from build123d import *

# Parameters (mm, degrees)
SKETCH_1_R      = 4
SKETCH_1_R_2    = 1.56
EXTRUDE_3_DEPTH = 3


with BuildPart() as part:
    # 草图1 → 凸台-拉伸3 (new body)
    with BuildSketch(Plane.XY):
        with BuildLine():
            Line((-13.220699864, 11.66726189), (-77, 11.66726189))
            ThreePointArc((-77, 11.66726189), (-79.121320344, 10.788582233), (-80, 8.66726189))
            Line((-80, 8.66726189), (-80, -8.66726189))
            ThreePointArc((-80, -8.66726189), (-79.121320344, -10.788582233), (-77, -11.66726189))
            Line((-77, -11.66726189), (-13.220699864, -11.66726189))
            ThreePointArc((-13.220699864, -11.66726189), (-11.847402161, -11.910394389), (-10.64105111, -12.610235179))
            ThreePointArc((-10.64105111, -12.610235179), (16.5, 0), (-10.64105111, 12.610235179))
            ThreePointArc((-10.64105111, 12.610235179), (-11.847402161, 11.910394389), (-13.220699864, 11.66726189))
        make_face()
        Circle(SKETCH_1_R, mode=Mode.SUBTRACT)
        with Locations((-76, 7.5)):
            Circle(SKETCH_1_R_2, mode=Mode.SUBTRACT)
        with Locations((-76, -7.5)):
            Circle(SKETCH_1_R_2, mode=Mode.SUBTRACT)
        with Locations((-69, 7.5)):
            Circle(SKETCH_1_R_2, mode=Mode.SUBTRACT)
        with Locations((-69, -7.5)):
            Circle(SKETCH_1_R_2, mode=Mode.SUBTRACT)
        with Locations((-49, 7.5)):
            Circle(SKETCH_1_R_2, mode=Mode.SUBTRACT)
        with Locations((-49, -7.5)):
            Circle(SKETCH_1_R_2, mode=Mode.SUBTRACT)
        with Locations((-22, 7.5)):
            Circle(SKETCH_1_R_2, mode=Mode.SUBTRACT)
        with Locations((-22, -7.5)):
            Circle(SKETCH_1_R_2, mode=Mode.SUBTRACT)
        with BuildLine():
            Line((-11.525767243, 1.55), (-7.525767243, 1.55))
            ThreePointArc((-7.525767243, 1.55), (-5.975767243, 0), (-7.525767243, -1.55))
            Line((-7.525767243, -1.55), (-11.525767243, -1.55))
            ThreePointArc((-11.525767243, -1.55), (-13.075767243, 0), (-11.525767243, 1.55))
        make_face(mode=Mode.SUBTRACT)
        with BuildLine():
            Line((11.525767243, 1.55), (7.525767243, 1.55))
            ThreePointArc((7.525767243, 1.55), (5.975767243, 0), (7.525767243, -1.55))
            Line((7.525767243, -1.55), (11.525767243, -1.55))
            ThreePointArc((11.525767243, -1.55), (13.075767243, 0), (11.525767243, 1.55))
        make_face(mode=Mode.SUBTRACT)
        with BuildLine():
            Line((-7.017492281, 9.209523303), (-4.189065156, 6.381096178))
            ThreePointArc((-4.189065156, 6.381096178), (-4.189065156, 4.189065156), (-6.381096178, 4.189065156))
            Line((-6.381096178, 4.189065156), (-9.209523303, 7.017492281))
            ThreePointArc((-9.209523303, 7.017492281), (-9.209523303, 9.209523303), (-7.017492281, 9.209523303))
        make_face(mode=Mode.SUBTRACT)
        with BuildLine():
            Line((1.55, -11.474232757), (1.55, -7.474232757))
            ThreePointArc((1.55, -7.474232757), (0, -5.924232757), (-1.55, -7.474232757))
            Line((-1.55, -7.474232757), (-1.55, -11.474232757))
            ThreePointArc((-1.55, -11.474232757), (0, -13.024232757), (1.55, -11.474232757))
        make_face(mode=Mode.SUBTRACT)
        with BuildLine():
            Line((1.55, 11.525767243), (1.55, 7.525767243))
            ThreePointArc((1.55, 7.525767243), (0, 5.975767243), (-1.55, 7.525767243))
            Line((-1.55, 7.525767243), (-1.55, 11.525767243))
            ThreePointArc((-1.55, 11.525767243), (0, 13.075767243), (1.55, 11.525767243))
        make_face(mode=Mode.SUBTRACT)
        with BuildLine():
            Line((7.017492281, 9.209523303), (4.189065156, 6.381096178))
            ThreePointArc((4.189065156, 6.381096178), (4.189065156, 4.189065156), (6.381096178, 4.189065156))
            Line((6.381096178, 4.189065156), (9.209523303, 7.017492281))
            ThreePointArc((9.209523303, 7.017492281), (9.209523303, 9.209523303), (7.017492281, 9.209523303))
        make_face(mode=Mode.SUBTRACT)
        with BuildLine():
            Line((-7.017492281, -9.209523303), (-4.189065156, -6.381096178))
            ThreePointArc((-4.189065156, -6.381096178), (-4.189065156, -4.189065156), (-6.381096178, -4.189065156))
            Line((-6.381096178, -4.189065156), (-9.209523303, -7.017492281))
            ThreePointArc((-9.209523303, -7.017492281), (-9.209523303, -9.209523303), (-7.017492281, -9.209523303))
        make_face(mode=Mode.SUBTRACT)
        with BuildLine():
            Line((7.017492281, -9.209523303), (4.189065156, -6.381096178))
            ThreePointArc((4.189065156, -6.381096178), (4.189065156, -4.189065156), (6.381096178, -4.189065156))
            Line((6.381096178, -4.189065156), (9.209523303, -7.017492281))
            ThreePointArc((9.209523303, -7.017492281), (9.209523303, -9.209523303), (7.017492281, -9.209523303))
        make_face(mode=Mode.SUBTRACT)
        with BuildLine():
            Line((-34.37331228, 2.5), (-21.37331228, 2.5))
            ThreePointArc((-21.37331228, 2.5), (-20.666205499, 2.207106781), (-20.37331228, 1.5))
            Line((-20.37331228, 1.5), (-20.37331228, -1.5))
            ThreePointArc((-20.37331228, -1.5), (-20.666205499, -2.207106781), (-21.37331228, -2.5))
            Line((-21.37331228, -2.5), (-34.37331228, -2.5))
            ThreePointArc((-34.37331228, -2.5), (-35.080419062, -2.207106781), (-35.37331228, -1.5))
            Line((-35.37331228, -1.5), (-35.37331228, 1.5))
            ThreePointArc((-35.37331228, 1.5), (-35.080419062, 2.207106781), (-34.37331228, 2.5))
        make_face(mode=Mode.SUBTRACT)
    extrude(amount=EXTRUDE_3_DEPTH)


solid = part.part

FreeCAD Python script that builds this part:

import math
import FreeCAD as App
import Part
import Sketcher
Q = App.Units.Quantity

doc = App.newDocument("Part")
body = doc.addObject("PartDesign::Body", "Body")

sketch1 = body.newObject("Sketcher::SketchObject", "Sketch")
sketch1.AttachmentSupport = (doc.getObject("XY_Plane"), [""])
sketch1.MapMode = "FlatFace"
sketch1.addGeometry([
    Part.LineSegment(App.Vector(-13.2, 11.7, 0), App.Vector(-77, 11.7, 0)),
    Part.ArcOfCircle(Part.Circle(App.Vector(-77, 8.7, 0), App.Vector(0, 0, 1), 3), math.radians(90), math.radians(180)),
    Part.LineSegment(App.Vector(-80, 8.7, 0), App.Vector(-80, -8.7, 0)),
    Part.ArcOfCircle(Part.Circle(App.Vector(-77, -8.7, 0), App.Vector(0, 0, 1), 3), math.radians(180), math.radians(270)),
    Part.LineSegment(App.Vector(-77, -11.7, 0), App.Vector(-13.2, -11.7, 0)),
    Part.ArcOfCircle(Part.Circle(App.Vector(-13.2, -15.7, 0), App.Vector(0, 0, 1), 4), math.radians(50), math.radians(90)),
    Part.ArcOfCircle(Part.Circle(App.Vector(0, 0, 0), App.Vector(0, 0, 1), 16.5), math.radians(-130), math.radians(130)),
    Part.ArcOfCircle(Part.Circle(App.Vector(-13.2, 15.7, 0), App.Vector(0, 0, 1), 4), math.radians(-90), math.radians(-50)),
    Part.Circle(App.Vector(-76, -7.5, 0), App.Vector(0, 0, 1), 1.6),
    Part.Circle(App.Vector(-69, -7.5, 0), App.Vector(0, 0, 1), 1.6),
    Part.Circle(App.Vector(-49, -7.5, 0), App.Vector(0, 0, 1), 1.6),
    Part.Circle(App.Vector(-22, -7.5, 0), App.Vector(0, 0, 1), 1.6),
    Part.LineSegment(App.Vector(1.6, -7.5, 0), App.Vector(1.6, -11.5, 0)),
    Part.ArcOfCircle(Part.Circle(App.Vector(0, -11.5, 0), App.Vector(0, 0, 1), 1.6), math.radians(180), math.radians(360)),
    Part.LineSegment(App.Vector(-1.6, -11.5, 0), App.Vector(-1.6, -7.5, 0)),
    Part.ArcOfCircle(Part.Circle(App.Vector(0, -7.5, 0), App.Vector(0, 0, 1), 1.6), math.radians(0), math.radians(180)),
    Part.LineSegment(App.Vector(-4.2, -6.4, 0), App.Vector(-7, -9.2, 0)),
    Part.ArcOfCircle(Part.Circle(App.Vector(-8.1, -8.1, 0), App.Vector(0, 0, 1), 1.6), math.radians(135), math.radians(315)),
    Part.LineSegment(App.Vector(-9.2, -7, 0), App.Vector(-6.4, -4.2, 0)),
    Part.ArcOfCircle(Part.Circle(App.Vector(-5.3, -5.3, 0), App.Vector(0, 0, 1), 1.6), math.radians(-45), math.radians(135)),
    Part.ArcOfCircle(Part.Circle(App.Vector(8.1, -8.1, 0), App.Vector(0, 0, 1), 1.6), math.radians(-135), math.radians(45)),
    Part.LineSegment(App.Vector(7, -9.2, 0), App.Vector(4.2, -6.4, 0)),
    Part.ArcOfCircle(Part.Circle(App.Vector(5.3, -5.3, 0), App.Vector(0, 0, 1), 1.6), math.radians(45), math.radians(225)),
    Part.LineSegment(App.Vector(6.4, -4.2, 0), App.Vector(9.2, -7, 0)),
    Part.ArcOfCircle(Part.Circle(App.Vector(-34.4, 1.5, 0), App.Vector(0, 0, 1), 1), math.radians(90), math.radians(180)),
    Part.LineSegment(App.Vector(-34.4, 2.5, 0), App.Vector(-21.4, 2.5, 0)),
    Part.ArcOfCircle(Part.Circle(App.Vector(-21.4, 1.5, 0), App.Vector(0, 0, 1), 1), math.radians(0), math.radians(90)),
    Part.LineSegment(App.Vector(-20.4, 1.5, 0), App.Vector(-20.4, -1.5, 0)),
    Part.ArcOfCircle(Part.Circle(App.Vector(-21.4, -1.5, 0), App.Vector(0, 0, 1), 1), math.radians(-90), math.radians(0)),
    Part.LineSegment(App.Vector(-21.4, -2.5, 0), App.Vector(-34.4, -2.5, 0)),
    Part.ArcOfCircle(Part.Circle(App.Vector(-34.4, -1.5, 0), App.Vector(0, 0, 1), 1), math.radians(180), math.radians(270)),
    Part.LineSegment(App.Vector(-35.4, -1.5, 0), App.Vector(-35.4, 1.5, 0)),
    Part.ArcOfCircle(Part.Circle(App.Vector(-11.5, 0, 0), App.Vector(0, 0, 1), 1.6), math.radians(90), math.radians(270)),
    Part.LineSegment(App.Vector(-11.5, 1.6, 0), App.Vector(-7.5, 1.6, 0)),
    Part.ArcOfCircle(Part.Circle(App.Vector(-7.5, 0, 0), App.Vector(0, 0, 1), 1.6), math.radians(-90), math.radians(90)),
    Part.LineSegment(App.Vector(-7.5, -1.6, 0), App.Vector(-11.5, -1.6, 0)),
    Part.Circle(App.Vector(0, 0, 0), App.Vector(0, 0, 1), 4),
    Part.LineSegment(App.Vector(7.5, 1.6, 0), App.Vector(11.5, 1.6, 0)),
    Part.ArcOfCircle(Part.Circle(App.Vector(11.5, 0, 0), App.Vector(0, 0, 1), 1.6), math.radians(-90), math.radians(90)),
    Part.LineSegment(App.Vector(11.5, -1.6, 0), App.Vector(7.5, -1.6, 0)),
    Part.ArcOfCircle(Part.Circle(App.Vector(7.5, 0, 0), App.Vector(0, 0, 1), 1.6), math.radians(90), math.radians(270)),
    Part.Circle(App.Vector(-76, 7.5, 0), App.Vector(0, 0, 1), 1.6),
    Part.Circle(App.Vector(-69, 7.5, 0), App.Vector(0, 0, 1), 1.6),
    Part.Circle(App.Vector(-49, 7.5, 0), App.Vector(0, 0, 1), 1.6),
    Part.Circle(App.Vector(-22, 7.5, 0), App.Vector(0, 0, 1), 1.6),
    Part.ArcOfCircle(Part.Circle(App.Vector(-8.1, 8.1, 0), App.Vector(0, 0, 1), 1.6), math.radians(45), math.radians(225)),
    Part.LineSegment(App.Vector(-7, 9.2, 0), App.Vector(-4.2, 6.4, 0)),
    Part.ArcOfCircle(Part.Circle(App.Vector(-5.3, 5.3, 0), App.Vector(0, 0, 1), 1.6), math.radians(-135), math.radians(45)),
    Part.LineSegment(App.Vector(-6.4, 4.2, 0), App.Vector(-9.2, 7, 0)),
    Part.ArcOfCircle(Part.Circle(App.Vector(0, 11.5, 0), App.Vector(0, 0, 1), 1.6), math.radians(0), math.radians(180)),
    Part.LineSegment(App.Vector(1.6, 11.5, 0), App.Vector(1.6, 7.5, 0)),
    Part.ArcOfCircle(Part.Circle(App.Vector(0, 7.5, 0), App.Vector(0, 0, 1), 1.6), math.radians(180), math.radians(360)),
    Part.LineSegment(App.Vector(-1.6, 7.5, 0), App.Vector(-1.6, 11.5, 0)),
    Part.LineSegment(App.Vector(4.2, 6.4, 0), App.Vector(7, 9.2, 0)),
    Part.ArcOfCircle(Part.Circle(App.Vector(8.1, 8.1, 0), App.Vector(0, 0, 1), 1.6), math.radians(-45), math.radians(135)),
    Part.LineSegment(App.Vector(9.2, 7, 0), App.Vector(6.4, 4.2, 0)),
    Part.ArcOfCircle(Part.Circle(App.Vector(5.3, 5.3, 0), App.Vector(0, 0, 1), 1.6), math.radians(135), math.radians(315)),
], False)
sketch1.addConstraint([
    Sketcher.Constraint("Tangent", 0, 2, 1, 1),
    Sketcher.Constraint("Tangent", 1, 2, 2, 1),
    Sketcher.Constraint("Tangent", 2, 2, 3, 1),
    Sketcher.Constraint("Tangent", 3, 2, 4, 1),
    Sketcher.Constraint("Tangent", 4, 2, 5, 2),
    Sketcher.Constraint("Tangent", 5, 1, 6, 1),
    Sketcher.Constraint("Tangent", 6, 2, 7, 2),
    Sketcher.Constraint("Tangent", 7, 1, 0, 1),
    Sketcher.Constraint("Tangent", 12, 2, 13, 2),
    Sketcher.Constraint("Tangent", 13, 1, 14, 1),
    Sketcher.Constraint("Tangent", 14, 2, 15, 2),
    Sketcher.Constraint("Tangent", 15, 1, 12, 1),
    Sketcher.Constraint("Tangent", 16, 2, 17, 2),
    Sketcher.Constraint("Tangent", 17, 1, 18, 1),
    Sketcher.Constraint("Tangent", 18, 2, 19, 2),
    Sketcher.Constraint("Tangent", 19, 1, 16, 1),
    Sketcher.Constraint("Tangent", 20, 1, 21, 1),
    Sketcher.Constraint("Tangent", 21, 2, 22, 2),
    Sketcher.Constraint("Tangent", 22, 1, 23, 1),
    Sketcher.Constraint("Tangent", 23, 2, 20, 2),
    Sketcher.Constraint("Tangent", 24, 1, 25, 1),
    Sketcher.Constraint("Tangent", 25, 2, 26, 2),
    Sketcher.Constraint("Tangent", 26, 1, 27, 1),
    Sketcher.Constraint("Tangent", 27, 2, 28, 2),
    Sketcher.Constraint("Tangent", 28, 1, 29, 1),
    Sketcher.Constraint("Tangent", 29, 2, 30, 2),
    Sketcher.Constraint("Tangent", 30, 1, 31, 1),
    Sketcher.Constraint("Tangent", 31, 2, 24, 2),
    Sketcher.Constraint("Tangent", 32, 1, 33, 1),
    Sketcher.Constraint("Tangent", 33, 2, 34, 2),
    Sketcher.Constraint("Tangent", 34, 1, 35, 1),
    Sketcher.Constraint("Tangent", 35, 2, 32, 2),
    Sketcher.Constraint("Tangent", 37, 2, 38, 2),
    Sketcher.Constraint("Tangent", 38, 1, 39, 1),
    Sketcher.Constraint("Tangent", 39, 2, 40, 2),
    Sketcher.Constraint("Tangent", 40, 1, 37, 1),
    Sketcher.Constraint("Tangent", 45, 1, 46, 1),
    Sketcher.Constraint("Tangent", 46, 2, 47, 2),
    Sketcher.Constraint("Tangent", 47, 1, 48, 1),
    Sketcher.Constraint("Tangent", 48, 2, 45, 2),
    Sketcher.Constraint("Tangent", 49, 1, 50, 1),
    Sketcher.Constraint("Tangent", 50, 2, 51, 2),
    Sketcher.Constraint("Tangent", 51, 1, 52, 1),
    Sketcher.Constraint("Tangent", 52, 2, 49, 2),
    Sketcher.Constraint("Tangent", 53, 2, 54, 2),
    Sketcher.Constraint("Tangent", 54, 1, 55, 1),
    Sketcher.Constraint("Tangent", 55, 2, 56, 2),
    Sketcher.Constraint("Tangent", 56, 1, 53, 1),
    Sketcher.Constraint("Horizontal", 0),
    Sketcher.Constraint("Vertical", 2),
    Sketcher.Constraint("Horizontal", 4),
    Sketcher.Constraint("Vertical", 12),
    Sketcher.Constraint("Vertical", 14),
    Sketcher.Constraint("Horizontal", 25),
    Sketcher.Constraint("Vertical", 27),
    Sketcher.Constraint("Horizontal", 29),
    Sketcher.Constraint("Vertical", 31),
    Sketcher.Constraint("Horizontal", 33),
    Sketcher.Constraint("Horizontal", 35),
    Sketcher.Constraint("Horizontal", 37),
    Sketcher.Constraint("Horizontal", 39),
    Sketcher.Constraint("Vertical", 50),
    Sketcher.Constraint("Vertical", 52),
    Sketcher.Constraint("Coincident", 6, 3, -1, 1),
    Sketcher.Constraint("Coincident", 36, 3, -1, 1),
    Sketcher.Constraint("Equal", 1, 3),
    Sketcher.Constraint("Equal", 5, 7),
    Sketcher.Constraint("Equal", 8, 9),
    Sketcher.Constraint("Equal", 9, 10),
    Sketcher.Constraint("Equal", 10, 11),
    Sketcher.Constraint("Equal", 15, 17),
    Sketcher.Constraint("Equal", 17, 19),
    Sketcher.Constraint("Equal", 19, 20),
    Sketcher.Constraint("Equal", 20, 22),
    Sketcher.Constraint("Equal", 24, 26),
    Sketcher.Constraint("Equal", 26, 28),
    Sketcher.Constraint("Equal", 28, 30),
    Sketcher.Constraint("Equal", 22, 32),
    Sketcher.Constraint("Equal", 7, 36),
    Sketcher.Constraint("Equal", 34, 38),
    Sketcher.Constraint("Equal", 11, 41),
    Sketcher.Constraint("Equal", 41, 42),
    Sketcher.Constraint("Equal", 42, 43),
    Sketcher.Constraint("Equal", 43, 44),
    Sketcher.Constraint("Equal", 40, 45),
    Sketcher.Constraint("Equal", 45, 47),
    Sketcher.Constraint("Equal", 47, 49),
    Sketcher.Constraint("Equal", 51, 54),
    Sketcher.Constraint("Equal", 54, 56),
    Sketcher.Constraint("Symmetric", 32, 3, 38, 3, -1, 1),
    Sketcher.Constraint("Symmetric", 20, 3, 45, 3, -1, 1),
    Sketcher.Constraint("Symmetric", 22, 3, 47, 3, -1, 1),
    Sketcher.Constraint("Symmetric", 17, 3, 54, 3, -1, 1),
    Sketcher.Constraint("Symmetric", 19, 3, 56, 3, -1, 1),
    Sketcher.Constraint("Symmetric", 17, 3, 20, 3, -2),
    Sketcher.Constraint("Symmetric", 19, 3, 22, 3, -2),
    Sketcher.Constraint("Symmetric", 34, 3, 40, 3, -2),
    Sketcher.Constraint("Symmetric", 8, 3, 41, 3, -1),
    Sketcher.Constraint("Symmetric", 9, 3, 42, 3, -1),
    Sketcher.Constraint("Symmetric", 10, 3, 43, 3, -1),
    Sketcher.Constraint("Symmetric", 11, 3, 44, 3, -1),
    Sketcher.Constraint("PointOnObject", 13, 3, -2),
    Sketcher.Constraint("PointOnObject", 49, 3, -2),
    Sketcher.Constraint("Perpendicular", 18, 21),
    Sketcher.Constraint("Horizontal", 8, 3, 9, 3),
    Sketcher.Constraint("Horizontal", 9, 3, 10, 3),
    Sketcher.Constraint("Horizontal", 10, 3, 11, 3),
    Sketcher.Constraint("Vertical", 5, 3, 7, 3),
    Sketcher.Constraint("Equal", 39, 12),
    Sketcher.Constraint("Equal", 14, 50),
    Sketcher.Constraint("Diameter", 36, Q("8 mm")),
    Sketcher.Constraint("Radius", 1, Q("3 mm")),
    Sketcher.Constraint("Radius", 24, Q("1 mm")),
    Sketcher.Constraint("Radius", 6, Q("16.5 mm")),
    Sketcher.Constraint("Diameter", 8, Q("3.12 mm")),
    Sketcher.Constraint("DistanceX", 25, 1, 25, 2, Q("13 mm")),
    Sketcher.Constraint("DistanceX", 33, 1, 33, 2, Q("4 mm")),
    Sketcher.Constraint("DistanceY", 27, 2, 27, 1, Q("3 mm")),
    Sketcher.Constraint("Radius", 13, Q("1.55 mm")),
    Sketcher.Constraint("Distance", 16, Q("4 mm")),
    Sketcher.Constraint("DistanceX", 1, 3, -1, 1, Q("77 mm")),
    Sketcher.Constraint("DistanceX", 8, 3, -1, 1, Q("76 mm")),
    Sketcher.Constraint("DistanceX", 9, 3, -1, 1, Q("69 mm")),
    Sketcher.Constraint("DistanceX", 10, 3, -1, 1, Q("49 mm")),
    Sketcher.Constraint("DistanceX", 11, 3, -1, 1, Q("22 mm")),
    Sketcher.Constraint("DistanceY", 8, 3, -1, 1, Q("7.5 mm")),
    Sketcher.Constraint("DistanceY", -1, 1, 24, 3, Q("1.5 mm")),
    Sketcher.Constraint("DistanceX", 0, 2, 0, 1, Q("63.7793 mm")),
    Sketcher.Constraint("DistanceX", 19, 3, -1, 1, Q("5.285081 mm")),
    Sketcher.Constraint("DistanceY", 19, 3, -1, 1, Q("5.285081 mm")),
    Sketcher.Constraint("DistanceY", 13, 3, -1, 1, Q("11.474233 mm")),
    Sketcher.Constraint("DistanceX", 24, 3, -1, 1, Q("34.373312 mm")),
    Sketcher.Constraint("DistanceX", 32, 3, -1, 1, Q("11.525767 mm")),
    Sketcher.Constraint("DistanceY", -1, 1, 49, 3, Q("11.525767 mm")),
])
pad1 = body.newObject("PartDesign::Pad", "Pad")
pad1.Profile = sketch1
pad1.Length = 3

doc.recompute()
